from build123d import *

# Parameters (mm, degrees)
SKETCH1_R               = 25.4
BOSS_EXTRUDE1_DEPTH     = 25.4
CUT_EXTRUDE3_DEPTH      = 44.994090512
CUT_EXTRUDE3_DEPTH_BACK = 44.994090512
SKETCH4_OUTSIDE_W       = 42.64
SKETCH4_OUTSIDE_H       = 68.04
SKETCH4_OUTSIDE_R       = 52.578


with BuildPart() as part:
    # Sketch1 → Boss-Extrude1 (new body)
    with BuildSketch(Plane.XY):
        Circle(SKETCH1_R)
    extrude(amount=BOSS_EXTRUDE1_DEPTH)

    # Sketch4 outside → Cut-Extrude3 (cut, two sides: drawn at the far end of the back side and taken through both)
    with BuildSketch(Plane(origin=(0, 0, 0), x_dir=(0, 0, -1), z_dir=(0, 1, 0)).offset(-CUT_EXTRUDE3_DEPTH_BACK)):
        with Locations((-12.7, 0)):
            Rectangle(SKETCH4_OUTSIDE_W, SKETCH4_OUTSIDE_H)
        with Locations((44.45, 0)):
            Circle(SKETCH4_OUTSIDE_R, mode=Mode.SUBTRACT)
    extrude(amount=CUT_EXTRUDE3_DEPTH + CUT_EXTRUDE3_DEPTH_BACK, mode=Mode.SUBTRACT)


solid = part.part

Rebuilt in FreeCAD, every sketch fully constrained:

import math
import FreeCAD as App
import Part
import Sketcher
from FreeCAD import Vector
Q = App.Units.Quantity

doc = App.newDocument("Part")
body = doc.addObject("PartDesign::Body", "Body")

# Sketch on XY plane
sketch1 = doc.addObject("Sketcher::SketchObject", "Sketch")
body.addObject(sketch1)
sketch1.AttachmentSupport = (doc.XY_Plane, [""])
sketch1.MapMode = "FlatFace"
sketch1.addGeometry(Part.Circle(Vector(0, 0, 0), Vector(0, 0, 1), 25), False)
sketch1.addConstraint(Sketcher.Constraint("Coincident", 0, 3, -1, 1))
sketch1.addConstraint(Sketcher.Constraint("Diameter", 0, Q("2 in")))
pad1 = doc.addObject("PartDesign::Pad", "Pad")
body.addObject(pad1)
pad1.Profile = sketch1
pad1.Length = Q("1 in")

# Sketch on XZ plane
sketch2 = doc.addObject("Sketcher::SketchObject", "Sketch001")
body.addObject(sketch2)
sketch2.AttachmentSupport = (doc.XZ_Plane, [""])
sketch2.MapMode = "FlatFace"
sketch2.addGeometry(Part.LineSegment(Vector(-34, 34, 0), Vector(34, 34, 0)), False)
sketch2.addGeometry(Part.LineSegment(Vector(34, 34, 0), Vector(34, -4, 0)), False)
sketch2.addGeometry(Part.ArcOfCircle(Part.Circle(Vector(0, -44, 0), Vector(0, 0, 1), 53), math.radians(50), math.radians(130)), False)
sketch2.addGeometry(Part.LineSegment(Vector(-34, -4, 0), Vector(-34, 34, 0)), False)
sketch2.addConstraint(Sketcher.Constraint("Coincident", 0, 2, 1, 1))
sketch2.addConstraint(Sketcher.Constraint("Coincident", 1, 2, 2, 1))
sketch2.addConstraint(Sketcher.Constraint("Coincident", 2, 2, 3, 1))
sketch2.addConstraint(Sketcher.Constraint("Coincident", 3, 2, 0, 1))
sketch2.addConstraint(Sketcher.Constraint("Horizontal", 0))
sketch2.addConstraint(Sketcher.Constraint("Vertical", 1))
sketch2.addConstraint(Sketcher.Constraint("Vertical", 3))
sketch2.addConstraint(Sketcher.Constraint("Symmetric", 1, 2, 2, 2, -2))
sketch2.addConstraint(Sketcher.Constraint("Radius", 2, Q("2.07 in")))
sketch2.addConstraint(Sketcher.Constraint("DistanceY", 2, 3, -1, 1, Q("1.75 in")))
sketch2.addConstraint(Sketcher.Constraint("DistanceX", 0, 1, 0, 2, 68.04))
sketch2.addConstraint(Sketcher.Constraint("DistanceY", -1, 1, 0, 2, 34.02))
pocket1 = doc.addObject("PartDesign::Pocket", "Pocket")
body.addObject(pocket1)
pocket1.Profile = sketch2
pocket1.Type = "ThroughAll"
pocket1.Midplane = True

doc.recompute()
